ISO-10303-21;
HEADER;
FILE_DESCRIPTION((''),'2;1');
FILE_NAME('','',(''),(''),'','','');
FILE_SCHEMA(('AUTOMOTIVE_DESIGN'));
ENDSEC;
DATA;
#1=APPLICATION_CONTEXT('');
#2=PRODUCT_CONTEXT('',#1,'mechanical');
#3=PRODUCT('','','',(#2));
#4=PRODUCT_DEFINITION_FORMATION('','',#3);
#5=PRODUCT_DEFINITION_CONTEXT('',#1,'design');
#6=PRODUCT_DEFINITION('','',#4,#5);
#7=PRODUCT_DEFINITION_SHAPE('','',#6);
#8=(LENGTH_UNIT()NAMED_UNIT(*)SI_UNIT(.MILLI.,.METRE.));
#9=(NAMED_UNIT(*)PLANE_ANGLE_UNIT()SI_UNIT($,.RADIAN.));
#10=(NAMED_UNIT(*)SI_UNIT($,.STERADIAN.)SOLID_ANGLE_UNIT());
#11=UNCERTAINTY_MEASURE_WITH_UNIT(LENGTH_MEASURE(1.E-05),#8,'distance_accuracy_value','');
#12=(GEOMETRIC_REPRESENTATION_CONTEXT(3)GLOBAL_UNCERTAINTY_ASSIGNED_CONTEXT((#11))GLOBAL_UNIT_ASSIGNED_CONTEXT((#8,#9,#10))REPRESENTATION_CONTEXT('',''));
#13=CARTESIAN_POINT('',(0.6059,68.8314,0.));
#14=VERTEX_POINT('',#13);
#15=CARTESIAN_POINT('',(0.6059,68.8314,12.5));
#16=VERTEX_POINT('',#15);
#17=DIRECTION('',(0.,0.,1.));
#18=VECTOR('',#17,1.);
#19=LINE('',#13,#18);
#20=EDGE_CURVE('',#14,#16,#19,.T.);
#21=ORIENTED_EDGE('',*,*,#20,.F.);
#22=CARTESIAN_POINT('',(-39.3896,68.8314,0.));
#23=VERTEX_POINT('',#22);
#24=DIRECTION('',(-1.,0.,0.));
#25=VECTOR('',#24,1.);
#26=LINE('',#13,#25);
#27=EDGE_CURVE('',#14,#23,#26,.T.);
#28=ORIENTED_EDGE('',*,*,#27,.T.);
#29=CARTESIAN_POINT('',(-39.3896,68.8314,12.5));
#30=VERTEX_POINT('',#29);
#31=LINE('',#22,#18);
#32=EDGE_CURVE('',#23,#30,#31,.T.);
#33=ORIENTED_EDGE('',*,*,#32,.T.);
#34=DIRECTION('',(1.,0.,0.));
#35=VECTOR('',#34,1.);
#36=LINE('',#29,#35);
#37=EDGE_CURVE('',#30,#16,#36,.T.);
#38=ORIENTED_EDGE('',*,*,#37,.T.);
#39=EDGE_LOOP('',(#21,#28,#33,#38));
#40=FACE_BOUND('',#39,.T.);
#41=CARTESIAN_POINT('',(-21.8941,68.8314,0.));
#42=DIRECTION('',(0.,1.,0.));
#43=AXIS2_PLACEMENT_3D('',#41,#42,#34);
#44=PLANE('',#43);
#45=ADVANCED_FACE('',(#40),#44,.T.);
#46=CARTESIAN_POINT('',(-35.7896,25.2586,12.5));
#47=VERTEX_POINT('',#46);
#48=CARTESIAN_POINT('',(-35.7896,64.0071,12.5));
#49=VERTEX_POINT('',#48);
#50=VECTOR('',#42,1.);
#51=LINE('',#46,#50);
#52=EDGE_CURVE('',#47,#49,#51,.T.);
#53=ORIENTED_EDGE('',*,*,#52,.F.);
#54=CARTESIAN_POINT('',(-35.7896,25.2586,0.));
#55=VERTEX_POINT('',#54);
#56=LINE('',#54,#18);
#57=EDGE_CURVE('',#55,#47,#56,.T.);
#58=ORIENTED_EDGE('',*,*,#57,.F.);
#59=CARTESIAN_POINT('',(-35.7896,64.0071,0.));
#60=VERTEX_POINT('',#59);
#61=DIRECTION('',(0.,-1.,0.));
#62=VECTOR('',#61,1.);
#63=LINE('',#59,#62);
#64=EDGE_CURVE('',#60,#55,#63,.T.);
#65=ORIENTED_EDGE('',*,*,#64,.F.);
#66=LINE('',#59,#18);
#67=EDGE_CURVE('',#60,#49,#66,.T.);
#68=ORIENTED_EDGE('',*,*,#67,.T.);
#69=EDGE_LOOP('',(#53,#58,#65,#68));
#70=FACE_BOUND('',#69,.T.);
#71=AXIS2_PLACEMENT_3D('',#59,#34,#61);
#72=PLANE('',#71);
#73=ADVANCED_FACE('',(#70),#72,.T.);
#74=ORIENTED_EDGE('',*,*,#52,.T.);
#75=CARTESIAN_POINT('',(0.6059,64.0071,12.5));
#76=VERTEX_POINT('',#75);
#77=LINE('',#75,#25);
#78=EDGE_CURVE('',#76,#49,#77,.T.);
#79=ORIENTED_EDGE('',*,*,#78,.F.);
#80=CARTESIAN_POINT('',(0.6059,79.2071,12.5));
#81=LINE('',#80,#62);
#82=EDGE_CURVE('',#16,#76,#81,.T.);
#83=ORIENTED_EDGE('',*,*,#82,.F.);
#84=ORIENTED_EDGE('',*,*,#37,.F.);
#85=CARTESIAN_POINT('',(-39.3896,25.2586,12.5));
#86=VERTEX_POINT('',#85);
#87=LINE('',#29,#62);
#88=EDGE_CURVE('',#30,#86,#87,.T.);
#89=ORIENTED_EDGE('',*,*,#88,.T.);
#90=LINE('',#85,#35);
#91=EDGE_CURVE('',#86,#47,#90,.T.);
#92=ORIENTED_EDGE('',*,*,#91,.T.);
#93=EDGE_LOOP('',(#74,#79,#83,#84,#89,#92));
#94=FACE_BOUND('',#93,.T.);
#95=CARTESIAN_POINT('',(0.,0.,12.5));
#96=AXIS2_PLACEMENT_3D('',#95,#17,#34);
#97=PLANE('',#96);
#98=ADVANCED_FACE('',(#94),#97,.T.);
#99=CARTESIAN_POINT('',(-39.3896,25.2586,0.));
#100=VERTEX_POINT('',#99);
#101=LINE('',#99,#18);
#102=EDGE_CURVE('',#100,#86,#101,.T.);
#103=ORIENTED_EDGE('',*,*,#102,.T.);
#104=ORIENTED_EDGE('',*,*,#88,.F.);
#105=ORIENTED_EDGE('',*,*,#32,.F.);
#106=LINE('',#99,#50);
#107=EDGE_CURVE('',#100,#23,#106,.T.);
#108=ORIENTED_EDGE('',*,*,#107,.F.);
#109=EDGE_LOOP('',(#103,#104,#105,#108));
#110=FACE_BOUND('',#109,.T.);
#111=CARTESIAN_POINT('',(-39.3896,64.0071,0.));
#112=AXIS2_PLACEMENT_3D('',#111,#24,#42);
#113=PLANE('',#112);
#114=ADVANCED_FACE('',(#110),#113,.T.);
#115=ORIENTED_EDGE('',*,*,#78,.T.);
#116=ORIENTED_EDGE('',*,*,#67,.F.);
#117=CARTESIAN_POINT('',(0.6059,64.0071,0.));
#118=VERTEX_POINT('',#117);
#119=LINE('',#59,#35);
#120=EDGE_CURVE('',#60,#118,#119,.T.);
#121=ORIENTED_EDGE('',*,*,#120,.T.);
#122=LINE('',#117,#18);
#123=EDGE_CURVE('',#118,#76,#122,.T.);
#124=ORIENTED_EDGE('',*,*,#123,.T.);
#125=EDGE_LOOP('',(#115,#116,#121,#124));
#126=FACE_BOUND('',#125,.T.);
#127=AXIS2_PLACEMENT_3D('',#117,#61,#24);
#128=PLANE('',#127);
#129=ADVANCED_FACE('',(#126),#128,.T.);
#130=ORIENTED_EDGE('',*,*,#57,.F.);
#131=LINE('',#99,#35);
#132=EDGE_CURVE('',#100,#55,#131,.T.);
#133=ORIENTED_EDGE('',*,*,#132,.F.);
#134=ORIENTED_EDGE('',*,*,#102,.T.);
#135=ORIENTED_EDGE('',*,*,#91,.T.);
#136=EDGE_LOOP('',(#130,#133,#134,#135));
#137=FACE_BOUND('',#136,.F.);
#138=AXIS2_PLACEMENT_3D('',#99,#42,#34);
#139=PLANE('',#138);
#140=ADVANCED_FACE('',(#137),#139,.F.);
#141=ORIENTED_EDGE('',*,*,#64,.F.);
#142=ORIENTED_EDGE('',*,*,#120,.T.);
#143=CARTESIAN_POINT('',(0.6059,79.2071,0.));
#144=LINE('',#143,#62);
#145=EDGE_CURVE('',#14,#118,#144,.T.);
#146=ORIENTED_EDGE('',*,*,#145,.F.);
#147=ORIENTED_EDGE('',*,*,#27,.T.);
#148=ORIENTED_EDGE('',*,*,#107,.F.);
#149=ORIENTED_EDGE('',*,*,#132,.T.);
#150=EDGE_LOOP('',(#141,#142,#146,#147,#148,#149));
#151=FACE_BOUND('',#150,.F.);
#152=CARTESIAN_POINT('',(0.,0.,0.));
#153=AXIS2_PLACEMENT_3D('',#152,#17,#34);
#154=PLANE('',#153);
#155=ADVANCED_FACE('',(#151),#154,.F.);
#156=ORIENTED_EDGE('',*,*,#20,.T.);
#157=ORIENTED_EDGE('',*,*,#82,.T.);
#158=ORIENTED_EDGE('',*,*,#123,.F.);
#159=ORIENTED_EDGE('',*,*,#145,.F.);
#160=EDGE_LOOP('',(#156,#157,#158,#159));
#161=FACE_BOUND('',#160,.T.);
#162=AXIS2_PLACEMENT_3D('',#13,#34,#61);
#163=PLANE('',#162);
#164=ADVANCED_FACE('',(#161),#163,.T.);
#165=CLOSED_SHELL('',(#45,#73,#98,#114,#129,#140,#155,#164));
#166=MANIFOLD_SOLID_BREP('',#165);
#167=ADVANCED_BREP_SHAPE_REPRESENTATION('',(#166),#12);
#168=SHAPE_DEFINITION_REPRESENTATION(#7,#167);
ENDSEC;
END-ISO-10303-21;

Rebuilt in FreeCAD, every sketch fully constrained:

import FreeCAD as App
import Part
import Sketcher

V = App.Vector


def add_polygon(sketch, points):
    """Adds a closed chain of lines whose ends are joined by coincident constraints."""
    first, n = sketch.GeometryCount, len(points)
    for a, b in zip(points, points[1:] + points[:1]):
        sketch.addGeometry(Part.LineSegment(App.Vector(*a, 0), App.Vector(*b, 0)), False)
    for i in range(n):
        sketch.addConstraint(Sketcher.Constraint("Coincident", first + i, 2, first + (i + 1) % n, 1))

doc = App.newDocument("Part")
params = doc.addObject("Spreadsheet::Sheet", "Params")
for row, (alias, value) in enumerate([
    ("sketch1_width", "3.6 mm"),
    ("pad1_length", "12.5 mm"),
], start=1):
    params.set(f"A{row}", alias)
    params.set(f"B{row}", "=" + value)
    params.setAlias(f"B{row}", alias)

body = doc.addObject("PartDesign::Body", "Body")

sketch1 = doc.addObject("Sketcher::SketchObject", "Sketch")
body.addObject(sketch1)
sketch1.AttachmentSupport = (doc.XY_Plane, [""])
sketch1.MapMode = "FlatFace"
add_polygon(sketch1, [(0.6, 64), (0.6, 68.8), (-39.4, 68.8), (-39.4, 25.3), (-35.8, 25.3), (-35.8, 64)])
sketch1.addConstraint([
    Sketcher.Constraint("Vertical", 0),
    Sketcher.Constraint("Horizontal", 1),
    Sketcher.Constraint("Vertical", 2),
    Sketcher.Constraint("Horizontal", 3),
    Sketcher.Constraint("Vertical", 4),
    Sketcher.Constraint("Horizontal", 5),
    Sketcher.Constraint("DistanceX", 3, 1, 3, 2, 3.6),
    Sketcher.Constraint("DistanceX", 1, 2, 1, 1, 39.9955),
    Sketcher.Constraint("DistanceY", 0, 1, 0, 2, 4.8243),
    Sketcher.Constraint("DistanceY", 2, 2, 2, 1, 43.5728),
    Sketcher.Constraint("DistanceX", -1, 1, 0, 2, 0.606),
    Sketcher.Constraint("DistanceY", -1, 1, 4, 2, 64.007),
])
sketch1.setExpression("Constraints[12]", "Params.sketch1_width")
pad1 = doc.addObject("PartDesign::Pad", "Pad")
body.addObject(pad1)
pad1.Profile = sketch1
pad1.setExpression("Length", "Params.pad1_length")

doc.recompute()
